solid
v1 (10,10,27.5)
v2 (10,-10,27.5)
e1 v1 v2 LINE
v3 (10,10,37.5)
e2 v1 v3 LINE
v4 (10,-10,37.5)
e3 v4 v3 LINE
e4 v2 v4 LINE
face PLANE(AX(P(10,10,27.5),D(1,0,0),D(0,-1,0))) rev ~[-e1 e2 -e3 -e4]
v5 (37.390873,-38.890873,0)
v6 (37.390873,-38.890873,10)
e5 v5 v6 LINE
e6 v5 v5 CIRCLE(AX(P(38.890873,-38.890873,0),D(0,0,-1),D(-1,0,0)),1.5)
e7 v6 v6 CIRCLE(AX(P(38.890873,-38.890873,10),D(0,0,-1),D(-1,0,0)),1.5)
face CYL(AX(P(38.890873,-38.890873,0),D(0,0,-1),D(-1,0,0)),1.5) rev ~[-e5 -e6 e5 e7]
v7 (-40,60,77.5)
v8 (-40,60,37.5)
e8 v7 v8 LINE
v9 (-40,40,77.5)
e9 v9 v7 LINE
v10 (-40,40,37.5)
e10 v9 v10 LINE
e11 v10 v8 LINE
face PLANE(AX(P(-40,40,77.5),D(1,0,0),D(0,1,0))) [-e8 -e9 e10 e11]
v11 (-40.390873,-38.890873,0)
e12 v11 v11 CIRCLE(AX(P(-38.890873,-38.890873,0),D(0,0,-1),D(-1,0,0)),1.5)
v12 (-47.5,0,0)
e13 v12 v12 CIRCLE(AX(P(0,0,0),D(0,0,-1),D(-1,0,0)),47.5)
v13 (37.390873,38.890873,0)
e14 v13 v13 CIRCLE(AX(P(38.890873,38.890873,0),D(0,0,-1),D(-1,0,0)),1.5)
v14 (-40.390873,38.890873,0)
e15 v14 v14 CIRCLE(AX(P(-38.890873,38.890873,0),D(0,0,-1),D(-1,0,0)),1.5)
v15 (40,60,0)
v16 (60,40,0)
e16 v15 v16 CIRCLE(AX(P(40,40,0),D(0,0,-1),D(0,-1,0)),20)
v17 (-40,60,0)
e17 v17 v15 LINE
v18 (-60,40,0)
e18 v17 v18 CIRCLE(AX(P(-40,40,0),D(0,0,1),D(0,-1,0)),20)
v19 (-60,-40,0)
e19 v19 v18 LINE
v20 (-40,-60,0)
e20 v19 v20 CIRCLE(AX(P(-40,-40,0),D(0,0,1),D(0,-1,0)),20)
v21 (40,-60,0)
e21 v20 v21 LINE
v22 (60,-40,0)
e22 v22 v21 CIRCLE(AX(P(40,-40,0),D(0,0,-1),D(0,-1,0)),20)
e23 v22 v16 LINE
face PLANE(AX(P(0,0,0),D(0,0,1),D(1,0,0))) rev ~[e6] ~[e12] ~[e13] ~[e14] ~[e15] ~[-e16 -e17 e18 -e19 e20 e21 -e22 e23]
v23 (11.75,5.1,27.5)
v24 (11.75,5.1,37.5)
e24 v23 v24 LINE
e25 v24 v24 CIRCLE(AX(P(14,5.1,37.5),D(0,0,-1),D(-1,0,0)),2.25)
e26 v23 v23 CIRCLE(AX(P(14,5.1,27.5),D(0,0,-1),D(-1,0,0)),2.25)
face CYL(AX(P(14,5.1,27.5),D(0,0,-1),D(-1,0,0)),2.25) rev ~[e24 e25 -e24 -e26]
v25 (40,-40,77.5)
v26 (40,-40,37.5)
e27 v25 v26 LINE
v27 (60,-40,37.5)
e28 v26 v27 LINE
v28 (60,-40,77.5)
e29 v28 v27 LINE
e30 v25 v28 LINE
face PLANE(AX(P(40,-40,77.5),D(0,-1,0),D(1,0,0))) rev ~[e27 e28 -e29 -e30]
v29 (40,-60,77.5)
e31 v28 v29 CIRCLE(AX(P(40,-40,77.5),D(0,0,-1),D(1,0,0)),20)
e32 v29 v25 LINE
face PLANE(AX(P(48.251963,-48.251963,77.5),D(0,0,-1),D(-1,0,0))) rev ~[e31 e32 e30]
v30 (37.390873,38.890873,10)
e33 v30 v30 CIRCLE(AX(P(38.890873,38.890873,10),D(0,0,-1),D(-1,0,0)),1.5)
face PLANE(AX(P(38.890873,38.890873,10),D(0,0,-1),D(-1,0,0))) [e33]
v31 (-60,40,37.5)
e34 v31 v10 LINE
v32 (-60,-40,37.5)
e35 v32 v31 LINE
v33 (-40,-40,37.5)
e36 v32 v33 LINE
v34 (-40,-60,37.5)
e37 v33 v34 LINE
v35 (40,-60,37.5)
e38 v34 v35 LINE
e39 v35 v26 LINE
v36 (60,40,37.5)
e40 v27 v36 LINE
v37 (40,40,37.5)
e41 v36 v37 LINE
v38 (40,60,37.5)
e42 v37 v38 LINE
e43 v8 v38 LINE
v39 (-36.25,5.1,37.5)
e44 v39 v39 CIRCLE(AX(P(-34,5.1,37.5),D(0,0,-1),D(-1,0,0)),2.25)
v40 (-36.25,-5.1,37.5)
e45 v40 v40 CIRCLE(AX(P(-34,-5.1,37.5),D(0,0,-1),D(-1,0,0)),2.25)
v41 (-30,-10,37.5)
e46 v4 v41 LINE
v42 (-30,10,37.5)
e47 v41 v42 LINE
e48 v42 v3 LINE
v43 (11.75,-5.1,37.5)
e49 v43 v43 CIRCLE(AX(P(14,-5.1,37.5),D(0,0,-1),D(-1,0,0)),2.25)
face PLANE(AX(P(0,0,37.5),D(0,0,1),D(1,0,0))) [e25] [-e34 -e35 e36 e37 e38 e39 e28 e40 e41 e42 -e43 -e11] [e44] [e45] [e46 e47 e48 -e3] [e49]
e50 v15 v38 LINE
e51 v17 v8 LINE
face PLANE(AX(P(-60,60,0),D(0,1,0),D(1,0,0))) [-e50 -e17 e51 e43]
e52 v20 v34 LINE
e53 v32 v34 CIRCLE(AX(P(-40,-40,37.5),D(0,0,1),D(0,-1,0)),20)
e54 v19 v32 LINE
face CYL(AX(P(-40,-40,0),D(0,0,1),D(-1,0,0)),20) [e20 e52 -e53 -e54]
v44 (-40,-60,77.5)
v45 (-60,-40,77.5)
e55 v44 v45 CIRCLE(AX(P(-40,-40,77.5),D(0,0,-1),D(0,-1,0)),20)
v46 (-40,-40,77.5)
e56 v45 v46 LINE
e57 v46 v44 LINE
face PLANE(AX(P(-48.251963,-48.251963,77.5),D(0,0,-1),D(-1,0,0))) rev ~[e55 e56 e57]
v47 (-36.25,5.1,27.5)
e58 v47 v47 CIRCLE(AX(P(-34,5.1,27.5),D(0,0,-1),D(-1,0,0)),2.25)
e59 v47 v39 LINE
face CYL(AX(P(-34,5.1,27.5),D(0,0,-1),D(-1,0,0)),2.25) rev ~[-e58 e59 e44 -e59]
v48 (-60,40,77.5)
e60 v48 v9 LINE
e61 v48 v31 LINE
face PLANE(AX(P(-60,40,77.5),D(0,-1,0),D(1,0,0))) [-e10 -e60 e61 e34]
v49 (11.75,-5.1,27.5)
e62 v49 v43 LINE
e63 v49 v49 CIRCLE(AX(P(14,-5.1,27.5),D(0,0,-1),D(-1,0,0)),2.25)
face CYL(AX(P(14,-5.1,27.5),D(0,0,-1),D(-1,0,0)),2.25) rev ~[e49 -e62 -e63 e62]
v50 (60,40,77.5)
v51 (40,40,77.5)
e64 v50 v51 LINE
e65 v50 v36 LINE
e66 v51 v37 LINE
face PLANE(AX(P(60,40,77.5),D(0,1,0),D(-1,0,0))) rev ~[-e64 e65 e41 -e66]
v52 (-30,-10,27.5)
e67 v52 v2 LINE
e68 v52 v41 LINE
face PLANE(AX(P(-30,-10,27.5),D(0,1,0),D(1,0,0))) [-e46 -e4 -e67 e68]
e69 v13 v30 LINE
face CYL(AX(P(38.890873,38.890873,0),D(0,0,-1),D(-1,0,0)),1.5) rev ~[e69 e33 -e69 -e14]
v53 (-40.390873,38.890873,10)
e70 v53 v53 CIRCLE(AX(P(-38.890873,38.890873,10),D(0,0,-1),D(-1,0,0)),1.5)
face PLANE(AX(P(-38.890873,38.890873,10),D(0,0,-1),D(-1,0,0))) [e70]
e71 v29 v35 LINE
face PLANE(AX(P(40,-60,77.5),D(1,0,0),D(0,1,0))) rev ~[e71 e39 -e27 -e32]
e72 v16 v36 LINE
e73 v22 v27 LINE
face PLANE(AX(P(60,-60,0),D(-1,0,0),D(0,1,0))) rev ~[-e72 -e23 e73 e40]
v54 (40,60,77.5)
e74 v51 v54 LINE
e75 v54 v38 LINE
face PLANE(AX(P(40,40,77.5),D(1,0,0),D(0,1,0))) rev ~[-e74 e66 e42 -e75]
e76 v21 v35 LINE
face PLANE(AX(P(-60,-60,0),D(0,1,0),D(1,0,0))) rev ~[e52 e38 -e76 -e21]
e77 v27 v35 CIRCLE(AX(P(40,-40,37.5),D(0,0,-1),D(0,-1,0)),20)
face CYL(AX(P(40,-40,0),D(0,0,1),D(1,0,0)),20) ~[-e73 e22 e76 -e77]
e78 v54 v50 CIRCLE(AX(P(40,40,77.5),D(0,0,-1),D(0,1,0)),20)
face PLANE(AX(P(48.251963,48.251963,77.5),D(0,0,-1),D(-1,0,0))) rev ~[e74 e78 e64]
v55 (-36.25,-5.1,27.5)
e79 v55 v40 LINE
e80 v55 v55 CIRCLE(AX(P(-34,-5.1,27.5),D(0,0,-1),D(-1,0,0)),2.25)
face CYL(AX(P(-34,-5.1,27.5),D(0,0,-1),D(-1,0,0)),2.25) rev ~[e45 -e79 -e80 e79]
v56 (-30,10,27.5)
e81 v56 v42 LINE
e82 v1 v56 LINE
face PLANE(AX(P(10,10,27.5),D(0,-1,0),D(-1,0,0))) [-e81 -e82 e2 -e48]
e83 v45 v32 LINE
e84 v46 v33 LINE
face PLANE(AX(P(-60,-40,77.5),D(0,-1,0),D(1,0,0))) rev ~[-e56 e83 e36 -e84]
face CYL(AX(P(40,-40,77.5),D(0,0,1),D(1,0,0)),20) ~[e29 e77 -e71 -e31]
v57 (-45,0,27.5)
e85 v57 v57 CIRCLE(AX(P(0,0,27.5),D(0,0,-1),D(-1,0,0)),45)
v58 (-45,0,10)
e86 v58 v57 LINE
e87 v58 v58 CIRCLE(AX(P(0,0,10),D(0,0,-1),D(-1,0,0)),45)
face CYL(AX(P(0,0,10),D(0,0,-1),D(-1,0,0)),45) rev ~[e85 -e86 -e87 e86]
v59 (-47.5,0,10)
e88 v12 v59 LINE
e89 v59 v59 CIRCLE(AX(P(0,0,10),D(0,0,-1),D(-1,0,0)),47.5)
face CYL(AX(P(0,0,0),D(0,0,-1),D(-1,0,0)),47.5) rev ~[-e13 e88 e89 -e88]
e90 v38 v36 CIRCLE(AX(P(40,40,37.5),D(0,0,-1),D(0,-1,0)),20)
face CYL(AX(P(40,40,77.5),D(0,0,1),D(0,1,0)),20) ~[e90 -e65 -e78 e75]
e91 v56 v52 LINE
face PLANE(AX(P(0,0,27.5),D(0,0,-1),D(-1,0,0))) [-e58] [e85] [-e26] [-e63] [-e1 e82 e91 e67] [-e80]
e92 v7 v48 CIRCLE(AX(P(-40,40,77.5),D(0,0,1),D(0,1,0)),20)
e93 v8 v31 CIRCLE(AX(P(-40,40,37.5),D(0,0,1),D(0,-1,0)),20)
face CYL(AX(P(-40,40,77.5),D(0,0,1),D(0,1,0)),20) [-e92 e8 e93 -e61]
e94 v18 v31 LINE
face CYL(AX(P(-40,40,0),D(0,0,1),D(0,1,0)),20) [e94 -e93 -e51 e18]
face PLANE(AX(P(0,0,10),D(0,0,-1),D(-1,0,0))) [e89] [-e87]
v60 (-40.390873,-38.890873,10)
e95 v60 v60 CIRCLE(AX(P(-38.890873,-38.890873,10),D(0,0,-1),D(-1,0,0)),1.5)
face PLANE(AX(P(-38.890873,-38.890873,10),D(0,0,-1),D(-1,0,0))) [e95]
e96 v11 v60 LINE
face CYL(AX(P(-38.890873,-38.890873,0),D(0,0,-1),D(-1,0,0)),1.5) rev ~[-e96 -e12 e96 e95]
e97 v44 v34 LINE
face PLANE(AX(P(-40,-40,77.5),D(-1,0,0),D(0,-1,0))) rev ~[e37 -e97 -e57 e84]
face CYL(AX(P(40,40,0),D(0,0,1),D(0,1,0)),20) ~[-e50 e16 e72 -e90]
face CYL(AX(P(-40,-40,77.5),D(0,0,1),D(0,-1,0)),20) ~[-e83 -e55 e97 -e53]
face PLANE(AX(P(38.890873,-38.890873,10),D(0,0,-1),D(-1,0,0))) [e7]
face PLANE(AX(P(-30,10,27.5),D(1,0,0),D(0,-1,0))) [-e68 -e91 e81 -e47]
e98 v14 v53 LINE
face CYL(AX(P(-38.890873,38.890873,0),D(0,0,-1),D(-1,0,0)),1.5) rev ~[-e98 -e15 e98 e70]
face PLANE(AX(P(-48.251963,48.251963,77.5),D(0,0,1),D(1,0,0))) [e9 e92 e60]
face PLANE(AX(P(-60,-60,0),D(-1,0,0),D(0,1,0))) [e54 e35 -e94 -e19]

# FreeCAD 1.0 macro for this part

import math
import FreeCAD as App
import Part
import Sketcher
Q = App.Units.Quantity


def edges_at(feature, points):
    """Names of the edges that pass closest to the given points."""
    edges = feature.Shape.Edges
    near = lambda p: min(range(len(edges)), key=lambda i: edges[i].distToShape(Part.Vertex(*p))[0])
    return sorted({f"Edge{near(p) + 1}" for p in points})

doc = App.newDocument("Part")
body = doc.addObject("PartDesign::Body", "Body")

sketch1 = body.newObject("Sketcher::SketchObject", "Sketch")
sketch1.AttachmentSupport = (doc.getObject("XY_Plane"), [""])
sketch1.MapMode = "FlatFace"
sketch1.addGeometry([
    Part.LineSegment(App.Vector(-60, 60, 0), App.Vector(-60, -60, 0)),
    Part.LineSegment(App.Vector(-60, -60, 0), App.Vector(60, -60, 0)),
    Part.LineSegment(App.Vector(60, -60, 0), App.Vector(60, 60, 0)),
    Part.LineSegment(App.Vector(60, 60, 0), App.Vector(-60, 60, 0)),
], False)
sketch1.addConstraint([
    Sketcher.Constraint("Coincident", 0, 2, 1, 1),
    Sketcher.Constraint("Coincident", 1, 2, 2, 1),
    Sketcher.Constraint("Coincident", 2, 2, 3, 1),
    Sketcher.Constraint("Coincident", 3, 2, 0, 1),
    Sketcher.Constraint("Vertical", 0),
    Sketcher.Constraint("Horizontal", 1),
    Sketcher.Constraint("Vertical", 2),
    Sketcher.Constraint("Horizontal", 3),
    Sketcher.Constraint("Symmetric", 0, 2, 2, 2, -1, 1),
    Sketcher.Constraint("Equal", 3, 0),
    Sketcher.Constraint("DistanceX", 1, 1, 1, 2, Q("120 mm")),
])
pad1 = body.newObject("PartDesign::Pad", "Pad")
pad1.Profile = sketch1
pad1.Length = 100

sketch2 = body.newObject("Sketcher::SketchObject", "Sketch001")
sketch2.AttachmentSupport = (doc.getObject("XY_Plane"), [""])
sketch2.MapMode = "FlatFace"
sketch2.addGeometry(Part.Circle(App.Vector(0, 0, 0), App.Vector(0, 0, 1), 47.5), False)
sketch2.addConstraint([
    Sketcher.Constraint("Coincident", 0, 3, -1, 1),
    Sketcher.Constraint("Diameter", 0, Q("95 mm")),
])
pocket1 = body.newObject("PartDesign::Pocket", "Pocket")
pocket1.Profile = sketch2
pocket1.Length = 10
pocket1.Reversed = True

sketch3 = body.newObject("Sketcher::SketchObject", "Sketch002")
sketch3.AttachmentSupport = (doc.getObject("XY_Plane"), [""])
sketch3.MapMode = "FlatFace"
sketch3.AttachmentOffset = App.Placement(App.Vector(0, 0, 10), App.Rotation())
sketch3.addGeometry(Part.Circle(App.Vector(0, 0, 0), App.Vector(0, 0, 1), 45), False)
sketch3.addConstraint([
    Sketcher.Constraint("Coincident", 0, 3, -1, 1),
    Sketcher.Constraint("Diameter", 0, Q("90 mm")),
])
pocket2 = body.newObject("PartDesign::Pocket", "Pocket001")
pocket2.Profile = sketch3
pocket2.Length = 17.5
pocket2.Reversed = True

sketch4 = body.newObject("Sketcher::SketchObject", "Sketch003")
sketch4.AttachmentSupport = (doc.getObject("XY_Plane"), [""])
sketch4.MapMode = "FlatFace"
sketch4.AttachmentOffset = App.Placement(App.Vector(0, 0, 100), App.Rotation())
sketch4.addGeometry([
    Part.LineSegment(App.Vector(-60, 60, 0), App.Vector(-60, -60, 0)),
    Part.LineSegment(App.Vector(-60, -60, 0), App.Vector(60, -60, 0)),
    Part.LineSegment(App.Vector(60, -60, 0), App.Vector(60, 60, 0)),
    Part.LineSegment(App.Vector(60, 60, 0), App.Vector(-60, 60, 0)),
], False)
sketch4.addConstraint([
    Sketcher.Constraint("Coincident", 0, 2, 1, 1),
    Sketcher.Constraint("Coincident", 1, 2, 2, 1),
    Sketcher.Constraint("Coincident", 2, 2, 3, 1),
    Sketcher.Constraint("Coincident", 3, 2, 0, 1),
    Sketcher.Constraint("Vertical", 0),
    Sketcher.Constraint("Horizontal", 1),
    Sketcher.Constraint("Vertical", 2),
    Sketcher.Constraint("Horizontal", 3),
    Sketcher.Constraint("Symmetric", 0, 2, 2, 2, -1, 1),
    Sketcher.Constraint("Equal", 3, 0),
    Sketcher.Constraint("DistanceX", 1, 1, 1, 2, Q("120 mm")),
])
pocket3 = body.newObject("PartDesign::Pocket", "Pocket002")
pocket3.Profile = sketch4
pocket3.Length = 49.5

sketch5 = body.newObject("Sketcher::SketchObject", "Sketch004")
sketch5.AttachmentSupport = (doc.getObject("XY_Plane"), [""])
sketch5.MapMode = "FlatFace"
sketch5.AttachmentOffset = App.Placement(App.Vector(0, 0, 50.5), App.Rotation())
sketch5.addGeometry([
    Part.LineSegment(App.Vector(-60, 60, 0), App.Vector(-60, -60, 0)),
    Part.LineSegment(App.Vector(-60, -60, 0), App.Vector(60, -60, 0)),
    Part.LineSegment(App.Vector(60, -60, 0), App.Vector(60, 60, 0)),
    Part.LineSegment(App.Vector(60, 60, 0), App.Vector(-60, 60, 0)),
], False)
sketch5.addConstraint([
    Sketcher.Constraint("Coincident", 0, 2, 1, 1),
    Sketcher.Constraint("Coincident", 1, 2, 2, 1),
    Sketcher.Constraint("Coincident", 2, 2, 3, 1),
    Sketcher.Constraint("Coincident", 3, 2, 0, 1),
    Sketcher.Constraint("Vertical", 0),
    Sketcher.Constraint("Horizontal", 1),
    Sketcher.Constraint("Vertical", 2),
    Sketcher.Constraint("Horizontal", 3),
    Sketcher.Constraint("Symmetric", 0, 2, 2, 2, -1, 1),
    Sketcher.Constraint("Equal", 3, 0),
    Sketcher.Constraint("DistanceX", 1, 1, 1, 2, Q("120 mm")),
])
pocket4 = body.newObject("PartDesign::Pocket", "Pocket003")
pocket4.Profile = sketch5
pocket4.Length = 13

sketch6 = body.newObject("Sketcher::SketchObject", "Sketch005")
sketch6.AttachmentSupport = (doc.getObject("XY_Plane"), [""])
sketch6.MapMode = "FlatFace"
sketch6.AttachmentOffset = App.Placement(App.Vector(0, 0, 27.5), App.Rotation())
sketch6.addGeometry([
    Part.LineSegment(App.Vector(-30, 10, 0), App.Vector(10, 10, 0)),
    Part.LineSegment(App.Vector(10, 10, 0), App.Vector(10, -10, 0)),
    Part.LineSegment(App.Vector(10, -10, 0), App.Vector(-30, -10, 0)),
    Part.LineSegment(App.Vector(-30, -10, 0), App.Vector(-30, 10, 0)),
], False)
sketch6.addConstraint([
    Sketcher.Constraint("Coincident", 0, 2, 1, 1),
    Sketcher.Constraint("Coincident", 1, 2, 2, 1),
    Sketcher.Constraint("Coincident", 2, 2, 3, 1),
    Sketcher.Constraint("Coincident", 3, 2, 0, 1),
    Sketcher.Constraint("Horizontal", 0),
    Sketcher.Constraint("Vertical", 1),
    Sketcher.Constraint("Horizontal", 2),
    Sketcher.Constraint("Vertical", 3),
    Sketcher.Constraint("DistanceX", 0, 1, 0, 2, Q("40 mm")),
    Sketcher.Constraint("DistanceY", 1, 2, 1, 1, Q("20 mm")),
    Sketcher.Constraint("DistanceX", -1, 1, 0, 2, Q("10 mm")),
    Sketcher.Constraint("DistanceY", -1, 1, 0, 2, Q("10 mm")),
])
pocket5 = body.newObject("PartDesign::Pocket", "Pocket004")
pocket5.Profile = sketch6
pocket5.Length = 13
pocket5.Reversed = True

sketch7 = body.newObject("Sketcher::SketchObject", "Sketch006")
sketch7.AttachmentSupport = (doc.getObject("XY_Plane"), [""])
sketch7.MapMode = "FlatFace"
sketch7.AttachmentOffset = App.Placement(App.Vector(0, 0, 27.5), App.Rotation())
sketch7.addGeometry([
    Part.Circle(App.Vector(14, 5.1, 0), App.Vector(0, 0, 1), 2.25),
    Part.Circle(App.Vector(14, -5.1, 0), App.Vector(0, 0, 1), 2.25),
], False)
sketch7.addConstraint([
    Sketcher.Constraint("Equal", 0, 1),
    Sketcher.Constraint("Symmetric", 0, 3, 1, 3, -1),
    Sketcher.Constraint("Diameter", 0, Q("4.5 mm")),
    Sketcher.Constraint("DistanceX", -1, 1, 0, 3, Q("14 mm")),
    Sketcher.Constraint("DistanceY", -1, 1, 0, 3, Q("5.1 mm")),
])
pocket6 = body.newObject("PartDesign::Pocket", "Pocket005")
pocket6.Profile = sketch7
pocket6.Length = 13
pocket6.Reversed = True

sketch8 = body.newObject("Sketcher::SketchObject", "Sketch007")
sketch8.AttachmentSupport = (doc.getObject("XY_Plane"), [""])
sketch8.MapMode = "FlatFace"
sketch8.AttachmentOffset = App.Placement(App.Vector(0, 0, 27.5), App.Rotation())
sketch8.addGeometry([
    Part.Circle(App.Vector(-34, 5.1, 0), App.Vector(0, 0, 1), 2.25),
    Part.Circle(App.Vector(-34, -5.1, 0), App.Vector(0, 0, 1), 2.25),
], False)
sketch8.addConstraint([
    Sketcher.Constraint("Equal", 0, 1),
    Sketcher.Constraint("Symmetric", 0, 3, 1, 3, -1),
    Sketcher.Constraint("Diameter", 0, Q("4.5 mm")),
    Sketcher.Constraint("DistanceX", 0, 3, -1, 1, Q("34 mm")),
    Sketcher.Constraint("DistanceY", -1, 1, 0, 3, Q("5.1 mm")),
])
pocket7 = body.newObject("PartDesign::Pocket", "Pocket006")
pocket7.Profile = sketch8
pocket7.Length = 13
pocket7.Reversed = True
doc.recompute()

fillet = body.newObject("PartDesign::Fillet", "Fillet")
fillet.Base = (pocket7, edges_at(pocket7, [(60, 60, 18.75)]))
fillet.Radius = 20
doc.recompute()

fillet2 = body.newObject("PartDesign::Fillet", "Fillet001")
fillet2.Base = (fillet, edges_at(fillet, [(60, -60, 18.75), (-60, -60, 18.75), (-60, 60, 18.75)]))
fillet2.Radius = 20

sketch9 = body.newObject("Sketcher::SketchObject", "Sketch008")
sketch9.AttachmentSupport = (doc.getObject("XY_Plane"), [""])
sketch9.MapMode = "FlatFace"
sketch9.addGeometry([
    Part.Circle(App.Vector(38.890873, 38.890873, 0), App.Vector(0, 0, 1), 1.5),
    Part.Circle(App.Vector(-38.890873, 38.890873, 0), App.Vector(0, 0, 1), 1.5),
    Part.Circle(App.Vector(-38.890873, -38.890873, 0), App.Vector(0, 0, 1), 1.5),
    Part.Circle(App.Vector(38.890873, -38.890873, 0), App.Vector(0, 0, 1), 1.5),
], False)
sketch9.addConstraint([
    Sketcher.Constraint("Equal", 0, 1),
    Sketcher.Constraint("Equal", 1, 2),
    Sketcher.Constraint("Equal", 2, 3),
    Sketcher.Constraint("Symmetric", 0, 3, 2, 3, -1, 1),
    Sketcher.Constraint("Symmetric", 1, 3, 3, 3, -1, 1),
    Sketcher.Constraint("Symmetric", 0, 3, 1, 3, -2),
    Sketcher.Constraint("Diameter", 0, Q("3 mm")),
    Sketcher.Constraint("DistanceX", -1, 1, 0, 3, Q("38.890873 mm")),
    Sketcher.Constraint("DistanceY", -1, 1, 0, 3, Q("38.890873 mm")),
])
pocket8 = body.newObject("PartDesign::Pocket", "Pocket007")
pocket8.Profile = sketch9
pocket8.Length = 10
pocket8.Reversed = True

sketch10 = body.newObject("Sketcher::SketchObject", "Sketch009")
sketch10.AttachmentSupport = (doc.getObject("XY_Plane"), [""])
sketch10.MapMode = "FlatFace"
sketch10.AttachmentOffset = App.Placement(App.Vector(0, 0, 77.5), App.Rotation())
sketch10.addGeometry([
    Part.LineSegment(App.Vector(-40, 40, 0), App.Vector(-40, 60, 0)),
    Part.ArcOfCircle(Part.Circle(App.Vector(-40, 40, 0), App.Vector(0, 0, 1), 20), math.radians(90), math.radians(180)),
    Part.LineSegment(App.Vector(-60, 40, 0), App.Vector(-40, 40, 0)),
    Part.LineSegment(App.Vector(40, 60, 0), App.Vector(40, 40, 0)),
    Part.LineSegment(App.Vector(40, 40, 0), App.Vector(60, 40, 0)),
    Part.ArcOfCircle(Part.Circle(App.Vector(40, 40, 0), App.Vector(0, 0, 1), 20), math.radians(0), math.radians(90)),
    Part.LineSegment(App.Vector(60, -40, 0), App.Vector(40, -40, 0)),
    Part.LineSegment(App.Vector(40, -40, 0), App.Vector(40, -60, 0)),
    Part.ArcOfCircle(Part.Circle(App.Vector(40, -40, 0), App.Vector(0, 0, 1), 20), math.radians(-90), math.radians(0)),
    Part.LineSegment(App.Vector(-40, -60, 0), App.Vector(-40, -40, 0)),
    Part.LineSegment(App.Vector(-40, -40, 0), App.Vector(-60, -40, 0)),
    Part.ArcOfCircle(Part.Circle(App.Vector(-40, -40, 0), App.Vector(0, 0, 1), 20), math.radians(180), math.radians(270)),
], False)
sketch10.addConstraint([
    Sketcher.Constraint("Coincident", 0, 2, 1, 1),
    Sketcher.Constraint("Coincident", 1, 2, 2, 1),
    Sketcher.Constraint("Coincident", 2, 2, 0, 1),
    Sketcher.Constraint("Coincident", 3, 2, 4, 1),
    Sketcher.Constraint("Coincident", 4, 2, 5, 1),
    Sketcher.Constraint("Coincident", 5, 2, 3, 1),
    Sketcher.Constraint("Coincident", 6, 2, 7, 1),
    Sketcher.Constraint("Coincident", 7, 2, 8, 1),
    Sketcher.Constraint("Coincident", 8, 2, 6, 1),
    Sketcher.Constraint("Coincident", 9, 2, 10, 1),
    Sketcher.Constraint("Coincident", 10, 2, 11, 1),
    Sketcher.Constraint("Coincident", 11, 2, 9, 1),
    Sketcher.Constraint("Vertical", 0),
    Sketcher.Constraint("Horizontal", 2),
    Sketcher.Constraint("Vertical", 3),
    Sketcher.Constraint("Horizontal", 4),
    Sketcher.Constraint("Horizontal", 6),
    Sketcher.Constraint("Vertical", 7),
    Sketcher.Constraint("Vertical", 9),
    Sketcher.Constraint("Horizontal", 10),
    Sketcher.Constraint("Coincident", 2, 2, 1, 3),
    Sketcher.Constraint("Coincident", 3, 2, 5, 3),
    Sketcher.Constraint("Coincident", 6, 2, 8, 3),
    Sketcher.Constraint("Coincident", 9, 2, 11, 3),
    Sketcher.Constraint("Equal", 1, 5),
    Sketcher.Constraint("Equal", 5, 8),
    Sketcher.Constraint("Equal", 8, 11),
    Sketcher.Constraint("Symmetric", 1, 3, 8, 3, -1, 1),
    Sketcher.Constraint("Symmetric", 5, 3, 11, 3, -1, 1),
    Sketcher.Constraint("Symmetric", 1, 3, 5, 3, -2),
    Sketcher.Constraint("Radius", 1, Q("20 mm")),
    Sketcher.Constraint("DistanceX", 1, 3, -1, 1, Q("40 mm")),
    Sketcher.Constraint("DistanceY", -1, 1, 1, 3, Q("40 mm")),
])
pad2 = body.newObject("PartDesign::Pad", "Pad001")
pad2.Profile = sketch10
pad2.Length = 40
pad2.Reversed = True

doc.recompute()
